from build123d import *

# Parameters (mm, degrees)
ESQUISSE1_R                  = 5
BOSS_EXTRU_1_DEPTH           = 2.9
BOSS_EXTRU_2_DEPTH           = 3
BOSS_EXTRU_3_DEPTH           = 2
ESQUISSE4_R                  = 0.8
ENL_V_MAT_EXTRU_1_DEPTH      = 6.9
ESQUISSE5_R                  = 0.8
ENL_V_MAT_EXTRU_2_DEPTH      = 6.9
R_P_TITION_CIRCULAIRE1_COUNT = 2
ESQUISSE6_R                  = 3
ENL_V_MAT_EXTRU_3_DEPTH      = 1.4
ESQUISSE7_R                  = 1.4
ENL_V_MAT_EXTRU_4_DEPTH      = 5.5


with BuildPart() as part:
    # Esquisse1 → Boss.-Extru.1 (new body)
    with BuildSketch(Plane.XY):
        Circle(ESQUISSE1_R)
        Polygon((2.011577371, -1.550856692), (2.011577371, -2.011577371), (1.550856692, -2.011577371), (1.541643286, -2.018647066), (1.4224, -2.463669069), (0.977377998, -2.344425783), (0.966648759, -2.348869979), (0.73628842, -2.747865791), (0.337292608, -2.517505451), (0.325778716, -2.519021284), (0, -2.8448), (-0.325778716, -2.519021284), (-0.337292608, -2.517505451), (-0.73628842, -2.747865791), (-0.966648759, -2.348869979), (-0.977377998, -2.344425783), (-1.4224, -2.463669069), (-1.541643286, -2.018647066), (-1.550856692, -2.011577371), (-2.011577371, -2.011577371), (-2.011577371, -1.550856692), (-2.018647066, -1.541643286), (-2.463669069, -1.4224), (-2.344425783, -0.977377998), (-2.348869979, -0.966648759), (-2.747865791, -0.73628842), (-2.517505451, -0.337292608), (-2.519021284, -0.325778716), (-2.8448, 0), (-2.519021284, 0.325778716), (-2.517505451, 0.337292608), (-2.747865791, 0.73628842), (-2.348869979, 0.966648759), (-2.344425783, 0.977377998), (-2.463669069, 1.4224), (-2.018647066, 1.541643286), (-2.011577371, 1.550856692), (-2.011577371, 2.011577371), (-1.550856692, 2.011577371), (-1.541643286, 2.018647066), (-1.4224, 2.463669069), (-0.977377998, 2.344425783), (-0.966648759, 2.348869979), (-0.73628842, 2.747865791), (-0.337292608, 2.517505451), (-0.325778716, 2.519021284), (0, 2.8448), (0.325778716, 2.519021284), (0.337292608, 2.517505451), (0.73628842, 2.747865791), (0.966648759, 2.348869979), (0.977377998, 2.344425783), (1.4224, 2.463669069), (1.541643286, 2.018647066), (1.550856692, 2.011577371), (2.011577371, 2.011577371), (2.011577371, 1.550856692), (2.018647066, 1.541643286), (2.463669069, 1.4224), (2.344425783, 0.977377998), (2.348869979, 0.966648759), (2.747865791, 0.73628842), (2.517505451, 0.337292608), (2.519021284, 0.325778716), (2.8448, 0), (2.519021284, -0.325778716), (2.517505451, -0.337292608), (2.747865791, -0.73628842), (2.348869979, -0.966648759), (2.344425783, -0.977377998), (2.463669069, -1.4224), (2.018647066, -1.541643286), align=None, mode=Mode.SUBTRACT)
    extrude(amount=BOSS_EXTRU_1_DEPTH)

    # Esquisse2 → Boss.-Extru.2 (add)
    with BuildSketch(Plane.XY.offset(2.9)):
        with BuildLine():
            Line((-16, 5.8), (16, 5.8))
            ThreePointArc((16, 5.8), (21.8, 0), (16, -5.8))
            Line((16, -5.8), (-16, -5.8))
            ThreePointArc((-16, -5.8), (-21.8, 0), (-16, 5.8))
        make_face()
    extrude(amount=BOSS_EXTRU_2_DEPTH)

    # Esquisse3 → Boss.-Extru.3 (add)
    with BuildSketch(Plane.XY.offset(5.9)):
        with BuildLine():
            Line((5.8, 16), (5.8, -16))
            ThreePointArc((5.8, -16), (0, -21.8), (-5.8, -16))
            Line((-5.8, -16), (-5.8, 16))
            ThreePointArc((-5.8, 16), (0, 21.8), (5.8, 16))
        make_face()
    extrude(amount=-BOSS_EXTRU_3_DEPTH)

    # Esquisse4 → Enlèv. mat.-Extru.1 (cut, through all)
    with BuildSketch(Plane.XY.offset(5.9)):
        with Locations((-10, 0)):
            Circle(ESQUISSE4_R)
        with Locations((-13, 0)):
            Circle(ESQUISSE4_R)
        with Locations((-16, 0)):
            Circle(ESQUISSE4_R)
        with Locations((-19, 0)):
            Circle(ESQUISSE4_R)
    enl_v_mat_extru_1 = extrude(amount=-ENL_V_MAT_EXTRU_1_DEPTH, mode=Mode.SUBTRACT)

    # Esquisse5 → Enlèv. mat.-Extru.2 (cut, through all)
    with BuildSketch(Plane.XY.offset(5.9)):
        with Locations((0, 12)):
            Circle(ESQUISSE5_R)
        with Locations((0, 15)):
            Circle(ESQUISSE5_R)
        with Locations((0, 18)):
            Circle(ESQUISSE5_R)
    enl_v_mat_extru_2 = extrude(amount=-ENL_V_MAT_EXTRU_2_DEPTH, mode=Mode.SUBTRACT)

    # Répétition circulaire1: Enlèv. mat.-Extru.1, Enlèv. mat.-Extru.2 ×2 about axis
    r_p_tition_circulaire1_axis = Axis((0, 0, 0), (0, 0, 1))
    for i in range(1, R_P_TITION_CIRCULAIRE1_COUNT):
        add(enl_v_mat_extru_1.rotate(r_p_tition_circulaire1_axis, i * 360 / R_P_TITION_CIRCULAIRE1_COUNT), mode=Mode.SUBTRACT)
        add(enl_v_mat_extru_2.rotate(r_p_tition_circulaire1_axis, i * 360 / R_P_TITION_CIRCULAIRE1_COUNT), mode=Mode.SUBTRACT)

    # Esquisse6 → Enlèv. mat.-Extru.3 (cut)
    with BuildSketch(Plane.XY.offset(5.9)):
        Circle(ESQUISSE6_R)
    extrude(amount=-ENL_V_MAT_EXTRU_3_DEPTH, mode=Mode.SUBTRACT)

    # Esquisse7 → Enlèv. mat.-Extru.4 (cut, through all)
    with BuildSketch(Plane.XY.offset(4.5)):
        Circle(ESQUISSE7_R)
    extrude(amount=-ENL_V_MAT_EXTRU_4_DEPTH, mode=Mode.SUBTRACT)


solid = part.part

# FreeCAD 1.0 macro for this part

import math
import FreeCAD as App
import Part
import Sketcher
from FreeCAD import Vector
Q = App.Units.Quantity


def add_polygon(sketch, points):
    """Adds a closed chain of lines whose ends are joined by coincident constraints."""
    first, n = sketch.GeometryCount, len(points)
    for a, b in zip(points, points[1:] + points[:1]):
        sketch.addGeometry(Part.LineSegment(App.Vector(*a, 0), App.Vector(*b, 0)), False)
    for i in range(n):
        sketch.addConstraint(Sketcher.Constraint("Coincident", first + i, 2, first + (i + 1) % n, 1))

doc = App.newDocument("Part")
params = doc.addObject("Spreadsheet::Sheet", "Params")
for row, (alias, value) in enumerate([
    ("sketch1_diameter", "10 mm"),
    ("pad1_length", "2.9 mm"),
    ("sketch2_radius", "5.8 mm"),
    ("sketch2_width", "32 mm"),
    ("pad2_length", "3 mm"),
    ("sketch3_radius", "5.8 mm"),
    ("sketch3_height", "32 mm"),
    ("pad3_length", "2 mm"),
    ("sketch4_diameter", "1.6 mm"),
    ("sketch5_diameter", "1.6 mm"),
    ("sketch6_diameter", "6 mm"),
    ("pocket3_length", "1.4 mm"),
    ("sketch7_diameter", "2.8 mm"),
], start=1):
    params.set(f"A{row}", alias)
    params.set(f"B{row}", "=" + value)
    params.setAlias(f"B{row}", alias)

body = doc.addObject("PartDesign::Body", "Body")

# Sketch on XY plane
sketch1 = body.newObject("Sketcher::SketchObject", "Sketch")
sketch1.AttachmentSupport = (doc.getObject("XY_Plane"), [""])
sketch1.MapMode = "FlatFace"
sketch1.addGeometry(Part.Circle(Vector(0, 0, 0), Vector(0, 0, 1), 5), False)  # 0
add_polygon(sketch1, [(2.019, -1.542), (2.012, -1.551), (2.012, -2.012), (1.551, -2.012), (1.542, -2.019), (1.422, -2.464), (0.977, -2.344), (0.967, -2.349), (0.736, -2.748), (0.337, -2.518), (0.326, -2.519), (0, -2.845), (-0.326, -2.519), (-0.337, -2.518), (-0.736, -2.748), (-0.967, -2.349), (-0.977, -2.344), (-1.422, -2.464), (-1.542, -2.019), (-1.551, -2.012), (-2.012, -2.012), (-2.012, -1.551), (-2.019, -1.542), (-2.464, -1.422), (-2.344, -0.977), (-2.349, -0.967), (-2.748, -0.736), (-2.518, -0.337), (-2.519, -0.326), (-2.845, 0), (-2.519, 0.326), (-2.518, 0.337), (-2.748, 0.736), (-2.349, 0.967), (-2.344, 0.977), (-2.464, 1.422), (-2.019, 1.542), (-2.012, 1.551), (-2.012, 2.012), (-1.551, 2.012), (-1.542, 2.019), (-1.422, 2.464), (-0.977, 2.344), (-0.967, 2.349), (-0.736, 2.748), (-0.337, 2.518), (-0.326, 2.519), (0, 2.845), (0.326, 2.519), (0.337, 2.518), (0.736, 2.748), (0.967, 2.349), (0.977, 2.344), (1.422, 2.464), (1.542, 2.019), (1.551, 2.012), (2.012, 2.012), (2.012, 1.551), (2.019, 1.542), (2.464, 1.422), (2.344, 0.977), (2.349, 0.967), (2.748, 0.736), (2.518, 0.337), (2.519, 0.326), (2.845, 0), (2.519, -0.326), (2.518, -0.337), (2.748, -0.736), (2.349, -0.967), (2.344, -0.977), (2.464, -1.422)])  # lines 1-72
sketch1.addConstraint([
    Sketcher.Constraint("Vertical", 2),
    Sketcher.Constraint("Horizontal", 3),
    Sketcher.Constraint("Horizontal", 20),
    Sketcher.Constraint("Vertical", 21),
    Sketcher.Constraint("Vertical", 38),
    Sketcher.Constraint("Horizontal", 39),
    Sketcher.Constraint("Horizontal", 56),
    Sketcher.Constraint("Vertical", 57),
    Sketcher.Constraint("Coincident", 0, 3, -1, 1),
    Sketcher.Constraint("Symmetric", 1, 2, 37, 2, -1, 1),
    Sketcher.Constraint("Symmetric", 3, 2, 39, 2, -1, 1),
    Sketcher.Constraint("Symmetric", 4, 2, 40, 2, -1, 1),
    Sketcher.Constraint("Symmetric", 5, 2, 41, 2, -1, 1),
    Sketcher.Constraint("Symmetric", 6, 2, 42, 2, -1, 1),
    Sketcher.Constraint("Symmetric", 7, 2, 43, 2, -1, 1),
    Sketcher.Constraint("Symmetric", 8, 2, 44, 2, -1, 1),
    Sketcher.Constraint("Symmetric", 9, 2, 45, 2, -1, 1),
    Sketcher.Constraint("Symmetric", 10, 2, 46, 2, -1, 1),
    Sketcher.Constraint("Symmetric", 11, 2, 47, 2, -1, 1),
    Sketcher.Constraint("Symmetric", 12, 2, 48, 2, -1, 1),
    Sketcher.Constraint("Symmetric", 13, 2, 49, 2, -1, 1),
    Sketcher.Constraint("Symmetric", 14, 2, 50, 2, -1, 1),
    Sketcher.Constraint("Symmetric", 15, 2, 51, 2, -1, 1),
    Sketcher.Constraint("Symmetric", 16, 2, 52, 2, -1, 1),
    Sketcher.Constraint("Symmetric", 17, 2, 53, 2, -1, 1),
    Sketcher.Constraint("Symmetric", 18, 2, 54, 2, -1, 1),
    Sketcher.Constraint("Symmetric", 19, 2, 55, 2, -1, 1),
    Sketcher.Constraint("Symmetric", 21, 2, 57, 2, -1, 1),
    Sketcher.Constraint("Symmetric", 22, 2, 58, 2, -1, 1),
    Sketcher.Constraint("Symmetric", 23, 2, 59, 2, -1, 1),
    Sketcher.Constraint("Symmetric", 24, 2, 60, 2, -1, 1),
    Sketcher.Constraint("Symmetric", 25, 2, 61, 2, -1, 1),
    Sketcher.Constraint("Symmetric", 26, 2, 62, 2, -1, 1),
    Sketcher.Constraint("Symmetric", 27, 2, 63, 2, -1, 1),
    Sketcher.Constraint("Symmetric", 28, 2, 64, 2, -1, 1),
    Sketcher.Constraint("Symmetric", 29, 2, 65, 2, -1, 1),
    Sketcher.Constraint("Symmetric", 30, 2, 66, 2, -1, 1),
    Sketcher.Constraint("Symmetric", 31, 2, 67, 2, -1, 1),
    Sketcher.Constraint("Symmetric", 32, 2, 68, 2, -1, 1),
    Sketcher.Constraint("Symmetric", 33, 2, 69, 2, -1, 1),
    Sketcher.Constraint("Symmetric", 34, 2, 70, 2, -1, 1),
    Sketcher.Constraint("Symmetric", 35, 2, 71, 2, -1, 1),
    Sketcher.Constraint("Symmetric", 36, 2, 72, 2, -1, 1),
    Sketcher.Constraint("Symmetric", 10, 2, 12, 2, -2),
    Sketcher.Constraint("Symmetric", 9, 2, 13, 2, -2),
    Sketcher.Constraint("Symmetric", 8, 2, 14, 2, -2),
    Sketcher.Constraint("Symmetric", 7, 2, 15, 2, -2),
    Sketcher.Constraint("Symmetric", 6, 2, 16, 2, -2),
    Sketcher.Constraint("Symmetric", 5, 2, 17, 2, -2),
    Sketcher.Constraint("Symmetric", 4, 2, 18, 2, -2),
    Sketcher.Constraint("Symmetric", 3, 2, 19, 2, -2),
    Sketcher.Constraint("Symmetric", 1, 2, 21, 2, -2),
    Sketcher.Constraint("Symmetric", 36, 2, 58, 2, -2),
    Sketcher.Constraint("Symmetric", 35, 2, 59, 2, -2),
    Sketcher.Constraint("Symmetric", 34, 2, 60, 2, -2),
    Sketcher.Constraint("Symmetric", 33, 2, 61, 2, -2),
    Sketcher.Constraint("Symmetric", 32, 2, 62, 2, -2),
    Sketcher.Constraint("Symmetric", 31, 2, 63, 2, -2),
    Sketcher.Constraint("Symmetric", 30, 2, 64, 2, -2),
    Sketcher.Constraint("PointOnObject", 11, 2, -2),
    Sketcher.Constraint("PointOnObject", 29, 2, -1),
    Sketcher.Constraint("Perpendicular", 5, 6),
    Sketcher.Constraint("Perpendicular", 8, 9),
    Sketcher.Constraint("Perpendicular", 11, 12),
    Sketcher.Constraint("Perpendicular", 1, 19),
    Sketcher.Constraint("Parallel", 6, 23),
    Sketcher.Constraint("Perpendicular", 23, 24),
    Sketcher.Constraint("Perpendicular", 7, 25),
    Sketcher.Constraint("Parallel", 9, 26),
    Sketcher.Constraint("Perpendicular", 26, 27),
    Sketcher.Constraint("Perpendicular", 10, 28),
    Sketcher.Constraint("Parallel", 12, 29),
    Sketcher.Constraint("Equal", 56, 2),
    Sketcher.Constraint("Equal", 1, 4),
    Sketcher.Constraint("Equal", 5, 6),
    Sketcher.Constraint("Equal", 4, 7),
    Sketcher.Constraint("Equal", 6, 8),
    Sketcher.Constraint("Equal", 8, 9),
    Sketcher.Constraint("Equal", 7, 10),
    Sketcher.Constraint("Equal", 9, 11),
    Sketcher.Constraint("Equal", 18, 23),
    Sketcher.Constraint("Equal", 23, 24),
    Sketcher.Constraint("Equal", 22, 25),
    Sketcher.Constraint("Equal", 24, 26),
    Sketcher.Constraint("Equal", 26, 27),
    Sketcher.Constraint("Equal", 25, 28),
    Sketcher.Constraint("Equal", 27, 29),
    Sketcher.Constraint("Diameter", 0, Q("10 mm")),
    Sketcher.Constraint("Angle", 5, Q("-105 deg")),
    Sketcher.Constraint("Angle", 8, Q("-120 deg")),
    Sketcher.Constraint("Angle", 1, Q("-127.5 deg")),
    Sketcher.Constraint("Angle", 7, Q("-157.500001 deg")),
    Sketcher.Constraint("Angle", 10, Q("-172.499998 deg")),
    Sketcher.Constraint("DistanceX", 3, 2, 3, 1, Q("0.460721 mm")),
    Sketcher.Constraint("DistanceX", -1, 1, 5, 2, Q("1.4224 mm")),
    Sketcher.Constraint("DistanceY", 11, 2, -1, 1, Q("2.8448 mm")),
])
sketch1.setExpression("Constraints[159]", "Params.sketch1_diameter")
pad1 = body.newObject("PartDesign::Pad", "Pad")
pad1.Profile = sketch1
pad1.setExpression("Length", "Params.pad1_length")

# Sketch on XY plane
sketch2 = body.newObject("Sketcher::SketchObject", "Sketch001")
sketch2.AttachmentSupport = (doc.getObject("XY_Plane"), [""])
sketch2.MapMode = "FlatFace"
sketch2.AttachmentOffset = App.Placement(Vector(0, 0, 2.9), App.Rotation())
sketch2.addGeometry([
    Part.LineSegment(Vector(16, 6, 0), Vector(-16, 6, 0)),
    Part.ArcOfCircle(Part.Circle(Vector(-16, 0, 0), Vector(0, 0, 1), 6), math.radians(90), math.radians(270)),
    Part.LineSegment(Vector(-16, -6, 0), Vector(16, -6, 0)),
    Part.ArcOfCircle(Part.Circle(Vector(16, 0, 0), Vector(0, 0, 1), 6), math.radians(-90), math.radians(90)),
], False)
sketch2.addConstraint([
    Sketcher.Constraint("Tangent", 0, 2, 1, 1),
    Sketcher.Constraint("Tangent", 1, 2, 2, 1),
    Sketcher.Constraint("Tangent", 2, 2, 3, 1),
    Sketcher.Constraint("Tangent", 3, 2, 0, 1),
    Sketcher.Constraint("Horizontal", 0),
    Sketcher.Constraint("Horizontal", 2),
    Sketcher.Constraint("Symmetric", 1, 3, 3, 3, -1, 1),
    Sketcher.Constraint("Radius", 1, Q("5.8 mm")),
    Sketcher.Constraint("DistanceX", 0, 2, 0, 1, Q("32 mm")),
])
sketch2.setExpression("Constraints[7]", "Params.sketch2_radius")
sketch2.setExpression("Constraints[8]", "Params.sketch2_width")
pad2 = body.newObject("PartDesign::Pad", "Pad001")
pad2.Profile = sketch2
pad2.setExpression("Length", "Params.pad2_length")

# Sketch on XY plane
sketch3 = body.newObject("Sketcher::SketchObject", "Sketch002")
sketch3.AttachmentSupport = (doc.getObject("XY_Plane"), [""])
sketch3.MapMode = "FlatFace"
sketch3.AttachmentOffset = App.Placement(Vector(0, 0, 5.9), App.Rotation())
sketch3.addGeometry([
    Part.LineSegment(Vector(6, -16, 0), Vector(6, 16, 0)),
    Part.ArcOfCircle(Part.Circle(Vector(0, 16, 0), Vector(0, 0, 1), 6), math.radians(0), math.radians(180)),
    Part.LineSegment(Vector(-6, 16, 0), Vector(-6, -16, 0)),
    Part.ArcOfCircle(Part.Circle(Vector(0, -16, 0), Vector(0, 0, 1), 6), math.radians(180), math.radians(360)),
], False)
sketch3.addConstraint([
    Sketcher.Constraint("Tangent", 0, 2, 1, 1),
    Sketcher.Constraint("Tangent", 1, 2, 2, 1),
    Sketcher.Constraint("Tangent", 2, 2, 3, 1),
    Sketcher.Constraint("Tangent", 3, 2, 0, 1),
    Sketcher.Constraint("Vertical", 0),
    Sketcher.Constraint("Vertical", 2),
    Sketcher.Constraint("Symmetric", 1, 3, 3, 3, -1, 1),
    Sketcher.Constraint("Radius", 1, Q("5.8 mm")),
    Sketcher.Constraint("DistanceY", 0, 1, 0, 2, Q("32 mm")),
])
sketch3.setExpression("Constraints[7]", "Params.sketch3_radius")
sketch3.setExpression("Constraints[8]", "Params.sketch3_height")
pad3 = body.newObject("PartDesign::Pad", "Pad002")
pad3.Profile = sketch3
pad3.setExpression("Length", "Params.pad3_length")
pad3.Reversed = True

# Sketch on XY plane
sketch4 = body.newObject("Sketcher::SketchObject", "Sketch003")
sketch4.AttachmentSupport = (doc.getObject("XY_Plane"), [""])
sketch4.MapMode = "FlatFace"
sketch4.AttachmentOffset = App.Placement(Vector(0, 0, 5.9), App.Rotation())
sketch4.addGeometry([
    Part.Circle(Vector(-10, 0, 0), Vector(0, 0, 1), 0.8),
    Part.Circle(Vector(-13, 0, 0), Vector(0, 0, 1), 0.8),
    Part.Circle(Vector(-16, 0, 0), Vector(0, 0, 1), 0.8),
    Part.Circle(Vector(-19, 0, 0), Vector(0, 0, 1), 0.8),
], False)
sketch4.addConstraint([
    Sketcher.Constraint("Equal", 0, 1),
    Sketcher.Constraint("Equal", 1, 2),
    Sketcher.Constraint("Equal", 2, 3),
    Sketcher.Constraint("PointOnObject", 0, 3, -1),
    Sketcher.Constraint("PointOnObject", 1, 3, -1),
    Sketcher.Constraint("PointOnObject", 2, 3, -1),
    Sketcher.Constraint("PointOnObject", 3, 3, -1),
    Sketcher.Constraint("Diameter", 0, Q("1.6 mm")),
    Sketcher.Constraint("DistanceX", 0, 3, -1, 1, Q("10 mm")),
    Sketcher.Constraint("DistanceX", 1, 3, -1, 1, Q("13 mm")),
    Sketcher.Constraint("DistanceX", 2, 3, -1, 1, Q("16 mm")),
    Sketcher.Constraint("DistanceX", 3, 3, -1, 1, Q("19 mm")),
])
sketch4.setExpression("Constraints[7]", "Params.sketch4_diameter")
pocket1 = body.newObject("PartDesign::Pocket", "Pocket")
pocket1.Profile = sketch4
pocket1.Type = "ThroughAll"

# Sketch on XY plane
sketch5 = body.newObject("Sketcher::SketchObject", "Sketch004")
sketch5.AttachmentSupport = (doc.getObject("XY_Plane"), [""])
sketch5.MapMode = "FlatFace"
sketch5.AttachmentOffset = App.Placement(Vector(0, 0, 5.9), App.Rotation())
sketch5.addGeometry([
    Part.Circle(Vector(0, 12, 0), Vector(0, 0, 1), 0.8),
    Part.Circle(Vector(0, 15, 0), Vector(0, 0, 1), 0.8),
    Part.Circle(Vector(0, 18, 0), Vector(0, 0, 1), 0.8),
], False)
sketch5.addConstraint([
    Sketcher.Constraint("Equal", 0, 1),
    Sketcher.Constraint("Equal", 1, 2),
    Sketcher.Constraint("PointOnObject", 0, 3, -2),
    Sketcher.Constraint("PointOnObject", 1, 3, -2),
    Sketcher.Constraint("PointOnObject", 2, 3, -2),
    Sketcher.Constraint("Diameter", 0, Q("1.6 mm")),
    Sketcher.Constraint("DistanceY", -1, 1, 0, 3, Q("12 mm")),
    Sketcher.Constraint("DistanceY", -1, 1, 1, 3, Q("15 mm")),
    Sketcher.Constraint("DistanceY", -1, 1, 2, 3, Q("18 mm")),
])
sketch5.setExpression("Constraints[5]", "Params.sketch5_diameter")
pocket2 = body.newObject("PartDesign::Pocket", "Pocket001")
pocket2.Profile = sketch5
pocket2.Type = "ThroughAll"
doc.recompute()

polarpattern = body.newObject("PartDesign::PolarPattern", "PolarPattern")
polarpattern.Originals = [pocket1, pocket2]
polarpattern.Axis = (doc.getObject("Z_Axis"), [""])
polarpattern.Angle = 360
polarpattern.Occurrences = 2
body.Tip = polarpattern

# Sketch on XY plane
sketch6 = body.newObject("Sketcher::SketchObject", "Sketch005")
sketch6.AttachmentSupport = (doc.getObject("XY_Plane"), [""])
sketch6.MapMode = "FlatFace"
sketch6.AttachmentOffset = App.Placement(Vector(0, 0, 5.9), App.Rotation())
sketch6.addGeometry(Part.Circle(Vector(0, 0, 0), Vector(0, 0, 1), 3), False)
sketch6.addConstraint([
    Sketcher.Constraint("Coincident", 0, 3, -1, 1),
    Sketcher.Constraint("Diameter", 0, Q("6 mm")),
])
sketch6.setExpression("Constraints[1]", "Params.sketch6_diameter")
pocket3 = body.newObject("PartDesign::Pocket", "Pocket002")
pocket3.Profile = sketch6
pocket3.setExpression("Length", "Params.pocket3_length")

# Sketch on XY plane
sketch7 = body.newObject("Sketcher::SketchObject", "Sketch006")
sketch7.AttachmentSupport = (doc.getObject("XY_Plane"), [""])
sketch7.MapMode = "FlatFace"
sketch7.AttachmentOffset = App.Placement(Vector(0, 0, 4.5), App.Rotation())
sketch7.addGeometry(Part.Circle(Vector(0, 0, 0), Vector(0, 0, 1), 1.4), False)
sketch7.addConstraint([
    Sketcher.Constraint("Coincident", 0, 3, -1, 1),
    Sketcher.Constraint("Diameter", 0, Q("2.8 mm")),
])
sketch7.setExpression("Constraints[1]", "Params.sketch7_diameter")
pocket4 = body.newObject("PartDesign::Pocket", "Pocket003")
pocket4.Profile = sketch7
pocket4.Type = "ThroughAll"

doc.recompute()
